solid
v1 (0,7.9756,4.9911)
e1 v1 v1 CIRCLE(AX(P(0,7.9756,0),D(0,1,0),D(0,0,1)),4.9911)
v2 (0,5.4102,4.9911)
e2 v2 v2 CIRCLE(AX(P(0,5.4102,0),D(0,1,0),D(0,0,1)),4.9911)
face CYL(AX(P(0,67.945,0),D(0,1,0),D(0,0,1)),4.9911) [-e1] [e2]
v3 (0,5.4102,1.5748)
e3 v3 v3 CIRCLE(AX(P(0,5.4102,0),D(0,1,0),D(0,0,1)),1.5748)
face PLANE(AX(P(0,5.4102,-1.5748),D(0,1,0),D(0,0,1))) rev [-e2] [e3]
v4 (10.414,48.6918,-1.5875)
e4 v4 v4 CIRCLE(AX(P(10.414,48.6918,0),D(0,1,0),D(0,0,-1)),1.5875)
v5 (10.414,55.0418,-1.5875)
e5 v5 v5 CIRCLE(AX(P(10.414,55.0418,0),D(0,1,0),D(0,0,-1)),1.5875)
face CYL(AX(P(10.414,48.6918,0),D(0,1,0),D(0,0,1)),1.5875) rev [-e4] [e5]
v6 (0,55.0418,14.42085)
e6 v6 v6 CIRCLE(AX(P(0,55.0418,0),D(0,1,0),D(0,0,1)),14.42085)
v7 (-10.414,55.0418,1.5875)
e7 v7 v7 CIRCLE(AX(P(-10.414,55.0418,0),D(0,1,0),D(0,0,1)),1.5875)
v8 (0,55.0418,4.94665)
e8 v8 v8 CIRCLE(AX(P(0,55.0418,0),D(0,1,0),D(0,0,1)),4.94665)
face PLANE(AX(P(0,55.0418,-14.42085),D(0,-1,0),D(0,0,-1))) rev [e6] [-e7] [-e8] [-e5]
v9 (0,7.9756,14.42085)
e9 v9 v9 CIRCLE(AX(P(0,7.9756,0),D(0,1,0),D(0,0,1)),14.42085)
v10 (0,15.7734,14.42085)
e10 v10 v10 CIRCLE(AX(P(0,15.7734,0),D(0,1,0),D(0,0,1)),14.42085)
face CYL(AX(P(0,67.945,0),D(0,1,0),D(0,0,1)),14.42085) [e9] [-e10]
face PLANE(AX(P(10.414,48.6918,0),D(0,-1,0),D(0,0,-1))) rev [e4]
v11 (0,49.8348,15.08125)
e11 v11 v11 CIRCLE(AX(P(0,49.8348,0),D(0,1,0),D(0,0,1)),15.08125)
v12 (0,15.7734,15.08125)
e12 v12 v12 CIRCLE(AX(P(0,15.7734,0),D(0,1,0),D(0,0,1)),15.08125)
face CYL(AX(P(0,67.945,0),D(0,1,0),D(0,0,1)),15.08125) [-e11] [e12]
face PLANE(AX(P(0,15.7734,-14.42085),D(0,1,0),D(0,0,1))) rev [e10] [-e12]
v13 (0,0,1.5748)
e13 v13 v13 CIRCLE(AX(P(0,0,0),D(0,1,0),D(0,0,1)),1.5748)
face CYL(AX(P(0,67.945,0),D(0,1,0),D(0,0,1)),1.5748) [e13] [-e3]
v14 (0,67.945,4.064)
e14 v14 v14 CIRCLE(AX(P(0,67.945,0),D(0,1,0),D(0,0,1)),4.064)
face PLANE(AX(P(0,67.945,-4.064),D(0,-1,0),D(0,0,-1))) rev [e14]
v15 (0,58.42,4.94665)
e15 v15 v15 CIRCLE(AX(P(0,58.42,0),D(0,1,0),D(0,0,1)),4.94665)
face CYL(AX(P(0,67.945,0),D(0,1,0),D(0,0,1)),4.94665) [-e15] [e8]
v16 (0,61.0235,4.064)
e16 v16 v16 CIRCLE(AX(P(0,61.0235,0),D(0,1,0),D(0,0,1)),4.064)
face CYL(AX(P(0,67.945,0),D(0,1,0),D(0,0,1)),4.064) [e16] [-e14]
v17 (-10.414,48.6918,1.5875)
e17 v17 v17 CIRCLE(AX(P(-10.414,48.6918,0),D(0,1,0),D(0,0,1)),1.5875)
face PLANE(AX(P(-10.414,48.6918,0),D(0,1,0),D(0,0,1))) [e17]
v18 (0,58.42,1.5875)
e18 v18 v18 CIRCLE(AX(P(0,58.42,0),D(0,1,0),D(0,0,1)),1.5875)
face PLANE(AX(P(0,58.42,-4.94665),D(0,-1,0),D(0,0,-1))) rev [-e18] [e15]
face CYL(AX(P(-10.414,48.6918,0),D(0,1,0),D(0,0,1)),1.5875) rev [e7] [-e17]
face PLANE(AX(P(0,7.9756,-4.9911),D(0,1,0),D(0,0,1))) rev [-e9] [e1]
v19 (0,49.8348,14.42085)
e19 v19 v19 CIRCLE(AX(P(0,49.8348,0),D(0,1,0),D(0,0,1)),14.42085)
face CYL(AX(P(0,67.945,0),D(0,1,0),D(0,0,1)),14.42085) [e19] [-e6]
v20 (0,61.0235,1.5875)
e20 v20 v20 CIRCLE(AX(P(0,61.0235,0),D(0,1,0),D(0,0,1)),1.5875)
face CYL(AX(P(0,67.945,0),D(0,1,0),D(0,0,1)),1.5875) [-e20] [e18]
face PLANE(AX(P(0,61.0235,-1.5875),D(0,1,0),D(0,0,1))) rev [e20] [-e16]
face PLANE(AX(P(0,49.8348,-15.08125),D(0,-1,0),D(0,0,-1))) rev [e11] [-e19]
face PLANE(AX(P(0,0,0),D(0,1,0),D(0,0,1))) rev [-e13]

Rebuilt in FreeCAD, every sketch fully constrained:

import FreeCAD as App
import Part
import Sketcher
Q = App.Units.Quantity

doc = App.newDocument("Part")
body = doc.addObject("PartDesign::Body", "Body")

sketch1 = body.newObject("Sketcher::SketchObject", "Sketch")
sketch1.AttachmentSupport = (doc.getObject("YZ_Plane"), [""])
sketch1.MapMode = "FlatFace"
sketch1.addGeometry([
    Part.LineSegment(App.Vector(67.9, 0, 0), App.Vector(0, 0, 0)),
    Part.LineSegment(App.Vector(0, 0, 0), App.Vector(0, -1.6, 0)),
    Part.LineSegment(App.Vector(0, -1.6, 0), App.Vector(5.4, -1.6, 0)),
    Part.LineSegment(App.Vector(5.4, -1.6, 0), App.Vector(5.4, -5, 0)),
    Part.LineSegment(App.Vector(5.4, -5, 0), App.Vector(8, -5, 0)),
    Part.LineSegment(App.Vector(8, -5, 0), App.Vector(8, -14.4, 0)),
    Part.LineSegment(App.Vector(8, -14.4, 0), App.Vector(15.8, -14.4, 0)),
    Part.LineSegment(App.Vector(15.8, -14.4, 0), App.Vector(15.8, -15.1, 0)),
    Part.LineSegment(App.Vector(15.8, -15.1, 0), App.Vector(49.8, -15.1, 0)),
    Part.LineSegment(App.Vector(49.8, -15.1, 0), App.Vector(49.8, -14.4, 0)),
    Part.LineSegment(App.Vector(49.8, -14.4, 0), App.Vector(55, -14.4, 0)),
    Part.LineSegment(App.Vector(55, -14.4, 0), App.Vector(55, -4.9, 0)),
    Part.LineSegment(App.Vector(55, -4.9, 0), App.Vector(58.4, -4.9, 0)),
    Part.LineSegment(App.Vector(58.4, -4.9, 0), App.Vector(58.4, -1.6, 0)),
    Part.LineSegment(App.Vector(58.4, -1.6, 0), App.Vector(61, -1.6, 0)),
    Part.LineSegment(App.Vector(61, -1.6, 0), App.Vector(61, -4.1, 0)),
    Part.LineSegment(App.Vector(61, -4.1, 0), App.Vector(67.9, -4.1, 0)),
    Part.LineSegment(App.Vector(67.9, -4.1, 0), App.Vector(67.9, 0, 0)),
], False)
sketch1.addConstraint([
    Sketcher.Constraint("Coincident", 0, 2, 1, 1),
    Sketcher.Constraint("Coincident", 1, 2, 2, 1),
    Sketcher.Constraint("Coincident", 2, 2, 3, 1),
    Sketcher.Constraint("Coincident", 3, 2, 4, 1),
    Sketcher.Constraint("Coincident", 4, 2, 5, 1),
    Sketcher.Constraint("Coincident", 5, 2, 6, 1),
    Sketcher.Constraint("Coincident", 6, 2, 7, 1),
    Sketcher.Constraint("Coincident", 7, 2, 8, 1),
    Sketcher.Constraint("Coincident", 8, 2, 9, 1),
    Sketcher.Constraint("Coincident", 9, 2, 10, 1),
    Sketcher.Constraint("Coincident", 10, 2, 11, 1),
    Sketcher.Constraint("Coincident", 11, 2, 12, 1),
    Sketcher.Constraint("Coincident", 12, 2, 13, 1),
    Sketcher.Constraint("Coincident", 13, 2, 14, 1),
    Sketcher.Constraint("Coincident", 14, 2, 15, 1),
    Sketcher.Constraint("Coincident", 15, 2, 16, 1),
    Sketcher.Constraint("Coincident", 16, 2, 17, 1),
    Sketcher.Constraint("Coincident", 17, 2, 0, 1),
    Sketcher.Constraint("Horizontal", 0),
    Sketcher.Constraint("Vertical", 1),
    Sketcher.Constraint("Horizontal", 2),
    Sketcher.Constraint("Vertical", 3),
    Sketcher.Constraint("Horizontal", 4),
    Sketcher.Constraint("Vertical", 5),
    Sketcher.Constraint("Horizontal", 6),
    Sketcher.Constraint("Vertical", 7),
    Sketcher.Constraint("Horizontal", 8),
    Sketcher.Constraint("Vertical", 9),
    Sketcher.Constraint("Horizontal", 10),
    Sketcher.Constraint("Vertical", 11),
    Sketcher.Constraint("Horizontal", 12),
    Sketcher.Constraint("Vertical", 13),
    Sketcher.Constraint("Horizontal", 14),
    Sketcher.Constraint("Vertical", 15),
    Sketcher.Constraint("Horizontal", 16),
    Sketcher.Constraint("Vertical", 17),
    Sketcher.Constraint("Coincident", 0, 2, -1, 1),
    Sketcher.Constraint("Horizontal", 6, 2, 9, 2),
    Sketcher.Constraint("DistanceY", 17, 1, 17, 2, Q("0.16 in")),
    Sketcher.Constraint("DistanceX", -1, 1, 12, 2, Q("2.3 in")),
    Sketcher.Constraint("DistanceX", 0, 2, 0, 1, Q("2.675 in")),
    Sketcher.Constraint("DistanceX", 2, 1, 2, 2, Q("0.213 in")),
    Sketcher.Constraint("DistanceX", 4, 1, 4, 2, Q("0.101 in")),
    Sketcher.Constraint("DistanceX", 6, 1, 6, 2, Q("0.307 in")),
    Sketcher.Constraint("DistanceX", 8, 1, 8, 2, Q("1.341 in")),
    Sketcher.Constraint("DistanceX", 10, 1, 10, 2, Q("0.205 in")),
    Sketcher.Constraint("DistanceY", 1, 2, 1, 1, Q("0.062 in")),
    Sketcher.Constraint("DistanceY", 7, 2, 7, 1, Q("0.026 in")),
    Sketcher.Constraint("DistanceY", 11, 1, 11, 2, Q("0.373 in")),
    Sketcher.Constraint("DistanceX", 14, 1, 14, 2, Q("0.1025 in")),
    Sketcher.Constraint("DistanceY", 3, 2, 3, 1, Q("0.1345 in")),
    Sketcher.Constraint("DistanceY", 15, 2, 15, 1, Q("0.0975 in")),
    Sketcher.Constraint("DistanceY", 7, 2, -1, 1, Q("0.59375 in")),
])
revolution = body.newObject("PartDesign::Revolution", "Revolution")
revolution.Profile = sketch1
revolution.ReferenceAxis = (sketch1, ["H_Axis"])
revolution.Angle = 360

sketch2 = body.newObject("Sketcher::SketchObject", "Sketch001")
sketch2.AttachmentSupport = (doc.getObject("XZ_Plane"), [""])
sketch2.MapMode = "FlatFace"
sketch2.AttachmentOffset = App.Placement(App.Vector(0, 0, -2.167 * 25.4), App.Rotation())
sketch2.addGeometry([
    Part.Circle(App.Vector(-10.4, 0, 0), App.Vector(0, 0, 1), 1.6),
    Part.Circle(App.Vector(10.4, 0, 0), App.Vector(0, 0, 1), 1.6),
], False)
sketch2.addConstraint([
    Sketcher.Constraint("Equal", 0, 1),
    Sketcher.Constraint("Symmetric", 0, 3, 1, 3, -1, 1),
    Sketcher.Constraint("PointOnObject", 0, 3, -1),
    Sketcher.Constraint("Diameter", 0, Q("0.125 in")),
    Sketcher.Constraint("DistanceX", 0, 3, -1, 1, Q("0.41 in")),
])
pocket1 = body.newObject("PartDesign::Pocket", "Pocket")
pocket1.Profile = sketch2
pocket1.Length = Q("0.25 in")
pocket1.Reversed = True

doc.recompute()
